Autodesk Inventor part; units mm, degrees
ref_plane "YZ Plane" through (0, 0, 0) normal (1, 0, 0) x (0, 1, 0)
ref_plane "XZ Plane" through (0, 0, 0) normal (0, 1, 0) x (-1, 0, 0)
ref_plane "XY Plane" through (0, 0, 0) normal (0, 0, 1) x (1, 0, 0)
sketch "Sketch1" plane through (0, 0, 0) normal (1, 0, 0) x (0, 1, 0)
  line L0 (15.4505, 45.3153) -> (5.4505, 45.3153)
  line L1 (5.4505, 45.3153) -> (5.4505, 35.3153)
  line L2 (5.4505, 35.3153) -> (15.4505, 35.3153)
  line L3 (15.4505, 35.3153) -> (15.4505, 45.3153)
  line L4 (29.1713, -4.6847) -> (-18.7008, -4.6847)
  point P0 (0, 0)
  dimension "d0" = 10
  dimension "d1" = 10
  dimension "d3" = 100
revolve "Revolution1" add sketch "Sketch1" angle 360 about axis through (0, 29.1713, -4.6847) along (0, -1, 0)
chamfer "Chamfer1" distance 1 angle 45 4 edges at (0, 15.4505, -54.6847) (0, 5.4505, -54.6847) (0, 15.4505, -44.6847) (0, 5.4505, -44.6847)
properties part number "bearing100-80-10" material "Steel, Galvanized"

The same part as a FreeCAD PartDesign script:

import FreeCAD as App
import Part
import Sketcher
from FreeCAD import Vector


def edges_at(feature, points):
    """Names of the edges that pass closest to the given points."""
    edges = feature.Shape.Edges
    near = lambda p: min(range(len(edges)), key=lambda i: edges[i].distToShape(Part.Vertex(*p))[0])
    return sorted({f"Edge{near(p) + 1}" for p in points})


def add_polygon(sketch, points):
    """Adds a closed chain of lines whose ends are joined by coincident constraints."""
    first, n = sketch.GeometryCount, len(points)
    for a, b in zip(points, points[1:] + points[:1]):
        sketch.addGeometry(Part.LineSegment(App.Vector(*a, 0), App.Vector(*b, 0)), False)
    for i in range(n):
        sketch.addConstraint(Sketcher.Constraint("Coincident", first + i, 2, first + (i + 1) % n, 1))

doc = App.newDocument("Part")
body = doc.addObject("PartDesign::Body", "Body")

sketch1 = body.newObject("Sketcher::SketchObject", "Sketch")
sketch1.AttachmentSupport = (doc.getObject("YZ_Plane"), [""])
sketch1.MapMode = "FlatFace"
add_polygon(sketch1, [(15, 35), (15, 45), (5, 45), (5, 35)])
sketch1.addGeometry(Part.LineSegment(Vector(15, -5, 0), Vector(5, -5, 0)), True)
sketch1.addConstraint([
    Sketcher.Constraint("Vertical", 0),
    Sketcher.Constraint("Horizontal", 1),
    Sketcher.Constraint("Vertical", 2),
    Sketcher.Constraint("Horizontal", 3),
    Sketcher.Constraint("Horizontal", 4),
    Sketcher.Constraint("Vertical", 3, 2, 4, 1),
    Sketcher.Constraint("Vertical", 2, 2, 4, 2),
    Sketcher.Constraint("Equal", 4, 0),
    Sketcher.Constraint("DistanceX", 1, 2, 1, 1, 10.0),
    Sketcher.Constraint("DistanceY", 4, 1, 3, 2, 40.0),
    Sketcher.Constraint("DistanceX", -1, 1, 0, 2, 15.4505),
    Sketcher.Constraint("DistanceY", -1, 1, 0, 2, 45.3153),
])
revolution = body.newObject("PartDesign::Revolution", "Revolution")
revolution.Profile = sketch1
revolution.ReferenceAxis = (sketch1, ["Axis0"])
revolution.Angle = 360
doc.recompute()

chamfer = body.newObject("PartDesign::Chamfer", "Chamfer")
chamfer.Base = (revolution, edges_at(revolution, [
    (0, 15.45, -54.685),
    (0, 5.45, -54.685),
    (0, 15.45, -44.685),
    (0, 5.45, -44.685),
]))
chamfer.Size = 1

doc.recompute()
